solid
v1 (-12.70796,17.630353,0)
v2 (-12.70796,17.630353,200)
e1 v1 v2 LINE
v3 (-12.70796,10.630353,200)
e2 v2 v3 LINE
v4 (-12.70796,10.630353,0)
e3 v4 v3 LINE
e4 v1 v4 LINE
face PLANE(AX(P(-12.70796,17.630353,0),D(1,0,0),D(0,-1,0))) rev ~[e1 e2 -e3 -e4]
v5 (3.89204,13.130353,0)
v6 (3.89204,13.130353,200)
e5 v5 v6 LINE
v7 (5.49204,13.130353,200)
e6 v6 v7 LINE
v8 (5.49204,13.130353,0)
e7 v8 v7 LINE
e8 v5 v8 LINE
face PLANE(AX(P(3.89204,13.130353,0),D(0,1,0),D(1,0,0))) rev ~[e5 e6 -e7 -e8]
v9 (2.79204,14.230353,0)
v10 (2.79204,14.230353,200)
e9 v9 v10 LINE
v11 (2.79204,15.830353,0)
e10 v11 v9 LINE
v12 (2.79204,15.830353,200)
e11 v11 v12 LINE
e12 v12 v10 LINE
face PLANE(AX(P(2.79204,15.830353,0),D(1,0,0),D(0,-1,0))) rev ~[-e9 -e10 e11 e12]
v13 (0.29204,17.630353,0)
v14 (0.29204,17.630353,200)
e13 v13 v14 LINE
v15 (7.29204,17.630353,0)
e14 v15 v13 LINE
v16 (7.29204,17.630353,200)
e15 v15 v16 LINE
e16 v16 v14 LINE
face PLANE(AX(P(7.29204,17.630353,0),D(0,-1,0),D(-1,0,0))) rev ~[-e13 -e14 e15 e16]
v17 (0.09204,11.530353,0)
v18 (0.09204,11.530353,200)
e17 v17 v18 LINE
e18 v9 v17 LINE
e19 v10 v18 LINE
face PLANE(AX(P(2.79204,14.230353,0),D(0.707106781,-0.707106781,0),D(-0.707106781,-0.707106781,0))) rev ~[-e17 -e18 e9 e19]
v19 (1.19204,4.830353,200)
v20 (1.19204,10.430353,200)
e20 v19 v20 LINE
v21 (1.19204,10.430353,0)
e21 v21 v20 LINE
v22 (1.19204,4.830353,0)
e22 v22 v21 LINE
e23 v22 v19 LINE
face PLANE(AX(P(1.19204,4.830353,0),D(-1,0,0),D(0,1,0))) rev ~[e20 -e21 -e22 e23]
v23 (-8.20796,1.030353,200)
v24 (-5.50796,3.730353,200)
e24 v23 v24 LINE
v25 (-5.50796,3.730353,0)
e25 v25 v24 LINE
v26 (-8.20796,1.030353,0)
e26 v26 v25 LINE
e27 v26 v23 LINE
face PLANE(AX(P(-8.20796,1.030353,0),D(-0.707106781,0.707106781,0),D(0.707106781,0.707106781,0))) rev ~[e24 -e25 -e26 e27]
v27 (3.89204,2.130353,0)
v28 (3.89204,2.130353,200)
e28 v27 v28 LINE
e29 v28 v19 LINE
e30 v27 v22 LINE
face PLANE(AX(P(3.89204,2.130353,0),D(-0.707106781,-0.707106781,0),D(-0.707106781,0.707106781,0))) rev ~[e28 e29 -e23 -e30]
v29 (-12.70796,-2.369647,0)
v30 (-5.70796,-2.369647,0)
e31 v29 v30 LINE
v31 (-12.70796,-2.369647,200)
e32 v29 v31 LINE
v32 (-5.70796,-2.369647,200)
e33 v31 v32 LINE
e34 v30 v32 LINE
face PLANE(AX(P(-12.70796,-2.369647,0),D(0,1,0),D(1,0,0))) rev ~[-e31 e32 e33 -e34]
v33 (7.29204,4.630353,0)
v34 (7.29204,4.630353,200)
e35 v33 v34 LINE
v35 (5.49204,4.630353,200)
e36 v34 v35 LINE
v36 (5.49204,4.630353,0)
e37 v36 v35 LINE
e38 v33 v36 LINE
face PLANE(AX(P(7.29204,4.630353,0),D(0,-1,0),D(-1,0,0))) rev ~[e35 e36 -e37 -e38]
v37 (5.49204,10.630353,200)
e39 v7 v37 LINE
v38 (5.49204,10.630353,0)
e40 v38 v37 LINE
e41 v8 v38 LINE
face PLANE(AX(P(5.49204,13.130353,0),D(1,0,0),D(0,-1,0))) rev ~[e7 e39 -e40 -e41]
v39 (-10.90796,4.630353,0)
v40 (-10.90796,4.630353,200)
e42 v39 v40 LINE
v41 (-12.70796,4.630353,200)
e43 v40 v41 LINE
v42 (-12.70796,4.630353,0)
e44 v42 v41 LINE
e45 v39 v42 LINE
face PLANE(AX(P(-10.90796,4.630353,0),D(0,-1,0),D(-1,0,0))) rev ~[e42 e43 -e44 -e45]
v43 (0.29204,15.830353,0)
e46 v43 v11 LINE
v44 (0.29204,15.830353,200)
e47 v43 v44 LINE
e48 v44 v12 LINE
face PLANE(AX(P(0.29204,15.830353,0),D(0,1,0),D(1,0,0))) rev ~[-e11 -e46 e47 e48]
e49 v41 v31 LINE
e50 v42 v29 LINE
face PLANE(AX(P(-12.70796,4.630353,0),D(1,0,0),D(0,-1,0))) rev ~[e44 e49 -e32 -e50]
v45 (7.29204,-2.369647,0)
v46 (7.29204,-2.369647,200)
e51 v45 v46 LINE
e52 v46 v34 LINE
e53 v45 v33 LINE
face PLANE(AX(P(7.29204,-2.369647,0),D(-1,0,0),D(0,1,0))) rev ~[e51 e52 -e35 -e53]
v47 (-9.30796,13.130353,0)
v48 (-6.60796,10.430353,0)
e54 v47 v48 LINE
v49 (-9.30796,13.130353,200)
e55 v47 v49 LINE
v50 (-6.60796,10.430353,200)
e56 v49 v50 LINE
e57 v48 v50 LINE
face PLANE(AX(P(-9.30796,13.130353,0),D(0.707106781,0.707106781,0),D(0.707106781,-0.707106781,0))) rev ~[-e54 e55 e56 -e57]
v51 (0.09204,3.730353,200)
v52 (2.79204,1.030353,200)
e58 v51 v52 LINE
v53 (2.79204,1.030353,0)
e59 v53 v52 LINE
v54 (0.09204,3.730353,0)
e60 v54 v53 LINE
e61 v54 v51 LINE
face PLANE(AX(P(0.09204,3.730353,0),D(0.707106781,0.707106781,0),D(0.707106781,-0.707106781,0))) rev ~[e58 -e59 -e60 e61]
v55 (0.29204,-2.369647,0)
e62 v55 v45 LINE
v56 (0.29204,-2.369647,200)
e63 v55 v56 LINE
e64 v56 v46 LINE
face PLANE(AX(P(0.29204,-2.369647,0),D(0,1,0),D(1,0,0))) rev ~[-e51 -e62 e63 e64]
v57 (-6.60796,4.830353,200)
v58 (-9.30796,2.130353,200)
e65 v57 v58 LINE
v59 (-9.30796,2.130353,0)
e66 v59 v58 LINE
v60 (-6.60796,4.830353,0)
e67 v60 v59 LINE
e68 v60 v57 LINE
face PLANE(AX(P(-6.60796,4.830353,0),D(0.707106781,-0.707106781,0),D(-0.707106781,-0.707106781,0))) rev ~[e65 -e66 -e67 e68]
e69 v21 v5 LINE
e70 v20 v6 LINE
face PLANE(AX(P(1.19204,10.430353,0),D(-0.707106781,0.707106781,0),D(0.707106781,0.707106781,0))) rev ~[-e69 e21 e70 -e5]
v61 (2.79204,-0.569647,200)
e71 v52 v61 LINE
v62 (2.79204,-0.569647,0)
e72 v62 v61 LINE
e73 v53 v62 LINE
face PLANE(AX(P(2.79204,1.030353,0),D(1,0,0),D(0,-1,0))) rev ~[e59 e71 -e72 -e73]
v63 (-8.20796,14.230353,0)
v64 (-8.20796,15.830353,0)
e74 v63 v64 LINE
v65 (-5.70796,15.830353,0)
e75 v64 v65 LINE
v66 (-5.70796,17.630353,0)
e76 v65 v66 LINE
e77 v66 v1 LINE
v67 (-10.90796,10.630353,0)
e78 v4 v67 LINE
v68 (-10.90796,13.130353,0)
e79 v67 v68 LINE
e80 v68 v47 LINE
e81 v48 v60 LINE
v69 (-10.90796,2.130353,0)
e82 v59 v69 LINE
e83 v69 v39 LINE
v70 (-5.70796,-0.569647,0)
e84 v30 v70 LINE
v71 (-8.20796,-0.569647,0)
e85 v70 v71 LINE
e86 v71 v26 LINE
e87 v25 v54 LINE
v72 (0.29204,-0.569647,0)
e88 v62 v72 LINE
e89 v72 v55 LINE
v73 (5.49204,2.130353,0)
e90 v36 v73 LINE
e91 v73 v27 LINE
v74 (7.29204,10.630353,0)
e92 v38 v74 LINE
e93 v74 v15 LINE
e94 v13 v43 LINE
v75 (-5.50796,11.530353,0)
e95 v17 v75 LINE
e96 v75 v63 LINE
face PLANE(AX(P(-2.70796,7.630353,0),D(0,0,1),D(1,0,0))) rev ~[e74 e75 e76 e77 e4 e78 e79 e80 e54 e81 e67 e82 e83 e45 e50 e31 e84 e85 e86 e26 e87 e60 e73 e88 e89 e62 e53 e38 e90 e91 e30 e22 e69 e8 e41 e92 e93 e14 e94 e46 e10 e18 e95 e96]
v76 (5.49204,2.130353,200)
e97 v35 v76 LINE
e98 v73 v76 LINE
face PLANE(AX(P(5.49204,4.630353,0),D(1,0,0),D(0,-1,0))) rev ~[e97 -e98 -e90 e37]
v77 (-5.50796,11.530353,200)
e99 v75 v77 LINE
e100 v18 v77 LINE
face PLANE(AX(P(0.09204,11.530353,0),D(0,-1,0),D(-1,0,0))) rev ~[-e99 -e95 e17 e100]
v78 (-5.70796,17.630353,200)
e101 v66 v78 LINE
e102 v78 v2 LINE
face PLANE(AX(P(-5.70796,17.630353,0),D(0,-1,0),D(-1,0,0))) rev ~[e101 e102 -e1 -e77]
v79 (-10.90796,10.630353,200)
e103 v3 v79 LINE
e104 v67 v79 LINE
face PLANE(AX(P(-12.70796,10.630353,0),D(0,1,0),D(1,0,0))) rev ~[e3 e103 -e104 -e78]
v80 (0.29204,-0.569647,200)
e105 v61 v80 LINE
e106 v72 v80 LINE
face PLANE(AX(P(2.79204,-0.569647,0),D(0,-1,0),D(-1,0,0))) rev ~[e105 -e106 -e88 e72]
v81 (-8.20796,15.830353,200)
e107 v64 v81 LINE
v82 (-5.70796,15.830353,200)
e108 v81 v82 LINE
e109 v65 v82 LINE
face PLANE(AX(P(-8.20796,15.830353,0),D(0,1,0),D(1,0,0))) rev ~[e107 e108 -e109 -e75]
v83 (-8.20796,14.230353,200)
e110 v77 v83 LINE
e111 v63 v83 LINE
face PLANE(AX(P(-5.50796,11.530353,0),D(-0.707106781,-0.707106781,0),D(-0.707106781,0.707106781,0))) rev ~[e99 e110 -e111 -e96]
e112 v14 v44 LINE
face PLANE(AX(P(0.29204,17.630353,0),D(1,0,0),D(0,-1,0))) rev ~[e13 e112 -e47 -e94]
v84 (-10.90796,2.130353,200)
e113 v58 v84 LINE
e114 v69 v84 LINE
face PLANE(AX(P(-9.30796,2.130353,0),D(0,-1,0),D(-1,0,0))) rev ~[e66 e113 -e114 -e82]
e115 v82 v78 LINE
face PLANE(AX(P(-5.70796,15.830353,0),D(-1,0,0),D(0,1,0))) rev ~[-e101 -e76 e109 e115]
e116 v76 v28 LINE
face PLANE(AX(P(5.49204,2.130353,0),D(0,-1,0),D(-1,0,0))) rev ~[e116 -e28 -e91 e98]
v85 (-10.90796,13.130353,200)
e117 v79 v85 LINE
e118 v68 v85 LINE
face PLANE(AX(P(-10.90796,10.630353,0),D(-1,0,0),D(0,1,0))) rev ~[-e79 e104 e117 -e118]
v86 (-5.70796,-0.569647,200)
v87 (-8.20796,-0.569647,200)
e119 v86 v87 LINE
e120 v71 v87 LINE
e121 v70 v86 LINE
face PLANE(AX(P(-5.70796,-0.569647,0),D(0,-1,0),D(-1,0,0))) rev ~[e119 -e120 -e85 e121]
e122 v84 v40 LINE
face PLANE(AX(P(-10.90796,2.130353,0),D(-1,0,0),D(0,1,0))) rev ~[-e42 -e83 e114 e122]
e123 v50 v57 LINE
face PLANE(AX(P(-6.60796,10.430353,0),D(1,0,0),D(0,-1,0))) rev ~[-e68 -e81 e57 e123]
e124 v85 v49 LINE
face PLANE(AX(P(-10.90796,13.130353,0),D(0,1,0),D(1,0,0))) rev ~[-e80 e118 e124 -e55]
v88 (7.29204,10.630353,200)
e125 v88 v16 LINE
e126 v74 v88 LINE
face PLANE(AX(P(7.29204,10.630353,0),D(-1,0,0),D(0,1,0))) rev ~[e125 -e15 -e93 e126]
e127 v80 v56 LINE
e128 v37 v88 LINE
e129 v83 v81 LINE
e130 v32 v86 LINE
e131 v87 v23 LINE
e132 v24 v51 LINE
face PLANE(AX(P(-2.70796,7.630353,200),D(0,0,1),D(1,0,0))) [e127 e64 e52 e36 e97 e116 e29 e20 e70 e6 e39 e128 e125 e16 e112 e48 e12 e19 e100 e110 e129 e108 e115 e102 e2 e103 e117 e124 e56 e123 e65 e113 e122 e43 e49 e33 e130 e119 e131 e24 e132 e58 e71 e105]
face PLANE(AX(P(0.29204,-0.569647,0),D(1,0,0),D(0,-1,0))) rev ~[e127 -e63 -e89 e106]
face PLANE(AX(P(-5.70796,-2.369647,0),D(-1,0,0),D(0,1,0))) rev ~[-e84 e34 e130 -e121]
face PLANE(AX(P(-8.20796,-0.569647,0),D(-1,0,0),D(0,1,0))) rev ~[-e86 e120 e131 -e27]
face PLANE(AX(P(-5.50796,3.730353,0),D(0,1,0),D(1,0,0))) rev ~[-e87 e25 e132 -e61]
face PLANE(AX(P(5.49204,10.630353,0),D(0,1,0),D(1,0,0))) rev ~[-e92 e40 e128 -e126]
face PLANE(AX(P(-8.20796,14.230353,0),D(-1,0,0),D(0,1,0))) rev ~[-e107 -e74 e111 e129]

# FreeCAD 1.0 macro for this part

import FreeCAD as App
import Part
import Sketcher


def add_polygon(sketch, points):
    """Adds a closed chain of lines whose ends are joined by coincident constraints."""
    first, n = sketch.GeometryCount, len(points)
    for a, b in zip(points, points[1:] + points[:1]):
        sketch.addGeometry(Part.LineSegment(App.Vector(*a, 0), App.Vector(*b, 0)), False)
    for i in range(n):
        sketch.addConstraint(Sketcher.Constraint("Coincident", first + i, 2, first + (i + 1) % n, 1))

doc = App.newDocument("Part")
body = doc.addObject("PartDesign::Body", "Body")

# Sketch on XY plane
sketch1 = doc.addObject("Sketcher::SketchObject", "Sketch")
body.addObject(sketch1)
sketch1.AttachmentSupport = (doc.XY_Plane, [""])
sketch1.MapMode = "FlatFace"
add_polygon(sketch1, [(-5.70796, 17.630353), (-12.70796, 17.630353), (-12.70796, 10.630353), (-10.90796, 10.630353), (-10.90796, 13.130353), (-9.30796, 13.130353), (-6.60796, 10.430353), (-6.60796, 4.830353), (-9.30796, 2.130353), (-10.90796, 2.130353), (-10.90796, 4.630353), (-12.70796, 4.630353), (-12.70796, -2.369647), (-5.70796, -2.369647), (-5.70796, -0.569647), (-8.20796, -0.569647), (-8.20796, 1.030353), (-5.50796, 3.730353), (0.09204, 3.730353), (2.79204, 1.030353), (2.79204, -0.569647), (0.29204, -0.569647), (0.29204, -2.369647), (7.29204, -2.369647), (7.29204, 4.630353), (5.49204, 4.630353), (5.49204, 2.130353), (3.89204, 2.130353), (1.19204, 4.830353), (1.19204, 10.430353), (3.89204, 13.130353), (5.49204, 13.130353), (5.49204, 10.630353), (7.29204, 10.630353), (7.29204, 17.630353), (0.29204, 17.630353), (0.29204, 15.830353), (2.79204, 15.830353), (2.79204, 14.230353), (0.09204, 11.530353), (-5.50796, 11.530353), (-8.20796, 14.230353), (-8.20796, 15.830353), (-5.70796, 15.830353)])  # lines 0-43
sketch1.addConstraint(Sketcher.Constraint("Horizontal", 0))
sketch1.addConstraint(Sketcher.Constraint("Vertical", 1))
sketch1.addConstraint(Sketcher.Constraint("Horizontal", 2))
sketch1.addConstraint(Sketcher.Constraint("Vertical", 3))
sketch1.addConstraint(Sketcher.Constraint("Horizontal", 4))
sketch1.addConstraint(Sketcher.Constraint("Vertical", 6))
sketch1.addConstraint(Sketcher.Constraint("Horizontal", 8))
sketch1.addConstraint(Sketcher.Constraint("Vertical", 9))
sketch1.addConstraint(Sketcher.Constraint("Horizontal", 10))
sketch1.addConstraint(Sketcher.Constraint("Vertical", 11))
sketch1.addConstraint(Sketcher.Constraint("Horizontal", 12))
sketch1.addConstraint(Sketcher.Constraint("Vertical", 13))
sketch1.addConstraint(Sketcher.Constraint("Horizontal", 14))
sketch1.addConstraint(Sketcher.Constraint("Vertical", 15))
sketch1.addConstraint(Sketcher.Constraint("Horizontal", 17))
sketch1.addConstraint(Sketcher.Constraint("Vertical", 19))
sketch1.addConstraint(Sketcher.Constraint("Horizontal", 20))
sketch1.addConstraint(Sketcher.Constraint("Vertical", 21))
sketch1.addConstraint(Sketcher.Constraint("Horizontal", 22))
sketch1.addConstraint(Sketcher.Constraint("Vertical", 23))
sketch1.addConstraint(Sketcher.Constraint("Horizontal", 24))
sketch1.addConstraint(Sketcher.Constraint("Vertical", 25))
sketch1.addConstraint(Sketcher.Constraint("Horizontal", 26))
sketch1.addConstraint(Sketcher.Constraint("Vertical", 28))
sketch1.addConstraint(Sketcher.Constraint("Horizontal", 30))
sketch1.addConstraint(Sketcher.Constraint("Vertical", 31))
sketch1.addConstraint(Sketcher.Constraint("Horizontal", 32))
sketch1.addConstraint(Sketcher.Constraint("Vertical", 33))
sketch1.addConstraint(Sketcher.Constraint("Horizontal", 34))
sketch1.addConstraint(Sketcher.Constraint("Vertical", 35))
sketch1.addConstraint(Sketcher.Constraint("Horizontal", 36))
sketch1.addConstraint(Sketcher.Constraint("Vertical", 37))
sketch1.addConstraint(Sketcher.Constraint("Horizontal", 39))
sketch1.addConstraint(Sketcher.Constraint("Vertical", 41))
sketch1.addConstraint(Sketcher.Constraint("Horizontal", 42))
sketch1.addConstraint(Sketcher.Constraint("Vertical", 43))
sketch1.addConstraint(Sketcher.Constraint("Perpendicular", 5, 7))
sketch1.addConstraint(Sketcher.Constraint("Parallel", 7, 16))
sketch1.addConstraint(Sketcher.Constraint("Perpendicular", 16, 18))
sketch1.addConstraint(Sketcher.Constraint("Parallel", 18, 27))
sketch1.addConstraint(Sketcher.Constraint("Perpendicular", 27, 29))
sketch1.addConstraint(Sketcher.Constraint("Parallel", 29, 38))
sketch1.addConstraint(Sketcher.Constraint("Perpendicular", 38, 40))
sketch1.addConstraint(Sketcher.Constraint("Horizontal", 15, 2, 18, 2))
sketch1.addConstraint(Sketcher.Constraint("Horizontal", 14, 2, 19, 2))
sketch1.addConstraint(Sketcher.Constraint("Horizontal", 12, 2, 21, 2))
sketch1.addConstraint(Sketcher.Constraint("Horizontal", 10, 2, 23, 2))
sketch1.addConstraint(Sketcher.Constraint("Horizontal", 8, 2, 25, 2))
sketch1.addConstraint(Sketcher.Constraint("Horizontal", 6, 2, 27, 2))
sketch1.addConstraint(Sketcher.Constraint("Horizontal", 5, 2, 28, 2))
sketch1.addConstraint(Sketcher.Constraint("Horizontal", 4, 2, 29, 2))
sketch1.addConstraint(Sketcher.Constraint("Horizontal", 2, 2, 31, 2))
sketch1.addConstraint(Sketcher.Constraint("Horizontal", 0, 2, 33, 2))
sketch1.addConstraint(Sketcher.Constraint("Horizontal", 37, 2, 40, 2))
sketch1.addConstraint(Sketcher.Constraint("Horizontal", 36, 2, 41, 2))
sketch1.addConstraint(Sketcher.Constraint("Vertical", 4, 2, 7, 2))
sketch1.addConstraint(Sketcher.Constraint("Vertical", 3, 2, 8, 2))
sketch1.addConstraint(Sketcher.Constraint("Vertical", 1, 2, 10, 2))
sketch1.addConstraint(Sketcher.Constraint("Vertical", 26, 2, 29, 2))
sketch1.addConstraint(Sketcher.Constraint("Vertical", 25, 2, 30, 2))
sketch1.addConstraint(Sketcher.Constraint("Vertical", 23, 2, 32, 2))
sketch1.addConstraint(Sketcher.Constraint("Vertical", 21, 2, 34, 2))
sketch1.addConstraint(Sketcher.Constraint("Vertical", 19, 2, 36, 2))
sketch1.addConstraint(Sketcher.Constraint("Vertical", 17, 2, 38, 2))
sketch1.addConstraint(Sketcher.Constraint("Vertical", 16, 2, 39, 2))
sketch1.addConstraint(Sketcher.Constraint("Vertical", 13, 2, 42, 2))
sketch1.addConstraint(Sketcher.Constraint("Equal", 14, 20))
sketch1.addConstraint(Sketcher.Constraint("Equal", 12, 22))
sketch1.addConstraint(Sketcher.Constraint("Equal", 10, 24))
sketch1.addConstraint(Sketcher.Constraint("Equal", 8, 26))
sketch1.addConstraint(Sketcher.Constraint("Equal", 34, 1))
sketch1.addConstraint(Sketcher.Constraint("Equal", 42, 3))
sketch1.addConstraint(Sketcher.Constraint("Equal", 39, 6))
sketch1.addConstraint(Sketcher.Constraint("Equal", 3, 9))
sketch1.addConstraint(Sketcher.Constraint("Equal", 1, 11))
sketch1.addConstraint(Sketcher.Constraint("Equal", 32, 13))
sketch1.addConstraint(Sketcher.Constraint("Equal", 30, 15))
sketch1.addConstraint(Sketcher.Constraint("Equal", 21, 35))
sketch1.addConstraint(Sketcher.Constraint("Equal", 19, 37))
sketch1.addConstraint(Sketcher.Constraint("Equal", 7, 16))
sketch1.addConstraint(Sketcher.Constraint("DistanceX", 0, 2, 0, 1, 7.0))
sketch1.addConstraint(Sketcher.Constraint("DistanceX", 2, 1, 2, 2, 1.8))
sketch1.addConstraint(Sketcher.Constraint("DistanceX", 4, 1, 4, 2, 1.6))
sketch1.addConstraint(Sketcher.Constraint("DistanceX", 14, 2, 14, 1, 2.5))
sketch1.addConstraint(Sketcher.Constraint("DistanceX", 17, 1, 17, 2, 5.6))
sketch1.addConstraint(Sketcher.Constraint("DistanceY", 7, 2, 4, 2, 11.0))
sketch1.addConstraint(Sketcher.Constraint("DistanceX", 0, 2, -1, 1, 12.70796))
sketch1.addConstraint(Sketcher.Constraint("DistanceY", -1, 1, 0, 2, 17.630353))
pad1 = doc.addObject("PartDesign::Pad", "Pad")
body.addObject(pad1)
pad1.Profile = sketch1
pad1.Length = 200

doc.recompute()
